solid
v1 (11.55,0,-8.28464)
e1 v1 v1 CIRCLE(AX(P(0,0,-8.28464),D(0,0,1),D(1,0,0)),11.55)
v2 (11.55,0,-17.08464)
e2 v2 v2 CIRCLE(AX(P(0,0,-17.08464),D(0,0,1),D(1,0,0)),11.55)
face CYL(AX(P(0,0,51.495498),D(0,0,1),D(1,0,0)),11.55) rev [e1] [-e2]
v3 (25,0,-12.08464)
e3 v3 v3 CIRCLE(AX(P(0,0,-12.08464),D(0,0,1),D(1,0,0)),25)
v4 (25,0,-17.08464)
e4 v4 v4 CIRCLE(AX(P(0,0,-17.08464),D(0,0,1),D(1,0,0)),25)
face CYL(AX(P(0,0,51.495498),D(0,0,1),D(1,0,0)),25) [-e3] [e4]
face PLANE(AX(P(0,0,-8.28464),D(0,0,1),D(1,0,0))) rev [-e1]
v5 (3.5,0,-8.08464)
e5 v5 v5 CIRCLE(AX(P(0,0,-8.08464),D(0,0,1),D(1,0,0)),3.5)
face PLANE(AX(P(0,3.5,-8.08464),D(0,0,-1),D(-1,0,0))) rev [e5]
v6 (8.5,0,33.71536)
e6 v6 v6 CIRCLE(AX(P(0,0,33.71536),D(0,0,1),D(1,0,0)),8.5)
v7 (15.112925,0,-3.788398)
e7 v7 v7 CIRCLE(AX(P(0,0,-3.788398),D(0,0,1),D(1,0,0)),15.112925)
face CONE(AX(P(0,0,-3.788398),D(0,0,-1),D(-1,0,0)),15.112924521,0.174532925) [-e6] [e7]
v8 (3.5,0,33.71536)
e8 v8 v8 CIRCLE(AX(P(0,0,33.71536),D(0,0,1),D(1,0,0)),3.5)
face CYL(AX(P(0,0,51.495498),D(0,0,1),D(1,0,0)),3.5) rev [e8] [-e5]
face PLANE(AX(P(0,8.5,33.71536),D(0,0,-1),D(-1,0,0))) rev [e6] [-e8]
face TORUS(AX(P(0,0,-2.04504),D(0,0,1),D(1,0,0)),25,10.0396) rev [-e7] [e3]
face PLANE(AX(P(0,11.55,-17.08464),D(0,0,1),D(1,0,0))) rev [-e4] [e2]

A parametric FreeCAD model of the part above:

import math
import FreeCAD as App
import Part
import Sketcher

V = App.Vector
Q = App.Units.Quantity

doc = App.newDocument("Part")
body = doc.addObject("PartDesign::Body", "Body")

# Sketch on YZ plane
sketch1 = body.newObject("Sketcher::SketchObject", "Sketch")
sketch1.AttachmentSupport = (doc.getObject("YZ_Plane"), [""])
sketch1.MapMode = "FlatFace"
sketch1.addGeometry([
    Part.LineSegment(V(3.5, 33.72, 0), V(3.5, -8.08, 0)),  # 0
    Part.LineSegment(V(3.5, -8.08, 0), V(0, -8.08, 0)),  # 1
    Part.LineSegment(V(0, -8.08, 0), V(0, -8.28, 0)),  # 2
    Part.LineSegment(V(0, -8.28, 0), V(11.55, -8.28, 0)),  # 3
    Part.LineSegment(V(11.55, -8.28, 0), V(11.55, -17.08, 0)),  # 4
    Part.LineSegment(V(11.55, -17.08, 0), V(25, -17.08, 0)),  # 5
    Part.LineSegment(V(25, -17.08, 0), V(25, -12.08, 0)),  # 6
    Part.ArcOfCircle(Part.Circle(V(25, -2.05, 0), V(0, 0, 1), 10.04), math.radians(-170), math.radians(-90)),  # 7
    Part.LineSegment(V(15.11, -3.79, 0), V(8.5, 33.72, 0)),  # 8
    Part.LineSegment(V(8.5, 33.72, 0), V(3.5, 33.72, 0)),  # 9
], False)
sketch1.addConstraint([
    Sketcher.Constraint("Coincident", 0, 2, 1, 1),
    Sketcher.Constraint("Coincident", 1, 2, 2, 1),
    Sketcher.Constraint("Coincident", 2, 2, 3, 1),
    Sketcher.Constraint("Coincident", 3, 2, 4, 1),
    Sketcher.Constraint("Coincident", 4, 2, 5, 1),
    Sketcher.Constraint("Coincident", 5, 2, 6, 1),
    Sketcher.Constraint("Coincident", 6, 2, 7, 2),
    Sketcher.Constraint("Tangent", 7, 1, 8, 1),
    Sketcher.Constraint("Coincident", 8, 2, 9, 1),
    Sketcher.Constraint("Coincident", 9, 2, 0, 1),
    Sketcher.Constraint("Vertical", 0),
    Sketcher.Constraint("Horizontal", 1),
    Sketcher.Constraint("Vertical", 2),
    Sketcher.Constraint("Horizontal", 3),
    Sketcher.Constraint("Vertical", 4),
    Sketcher.Constraint("Horizontal", 5),
    Sketcher.Constraint("Vertical", 6),
    Sketcher.Constraint("Horizontal", 9),
    Sketcher.Constraint("PointOnObject", 1, 2, -2),
    Sketcher.Constraint("Vertical", 7, 3, 5, 2),
    Sketcher.Constraint("Equal", 9, 6),
    Sketcher.Constraint("DistanceX", 9, 2, 9, 1, 5.0),
    Sketcher.Constraint("Angle", 8, Q("100 deg")),
    Sketcher.Constraint("DistanceX", 1, 2, 1, 1, 3.5),
    Sketcher.Constraint("DistanceY", 0, 2, 0, 1, 41.8),
    Sketcher.Constraint("DistanceY", 2, 2, 2, 1, 0.2),
    Sketcher.Constraint("DistanceY", 4, 2, 4, 1, 8.8),
    Sketcher.Constraint("DistanceX", -1, 1, 7, 3, 25.0),
    Sketcher.Constraint("DistanceX", 3, 1, 3, 2, 11.55),
    Sketcher.Constraint("DistanceY", 7, 1, -1, 1, 3.788398),
])
revolution = body.newObject("PartDesign::Revolution", "Revolution")
revolution.Profile = sketch1
revolution.ReferenceAxis = (sketch1, ["V_Axis"])
revolution.Angle = 360

doc.recompute()
